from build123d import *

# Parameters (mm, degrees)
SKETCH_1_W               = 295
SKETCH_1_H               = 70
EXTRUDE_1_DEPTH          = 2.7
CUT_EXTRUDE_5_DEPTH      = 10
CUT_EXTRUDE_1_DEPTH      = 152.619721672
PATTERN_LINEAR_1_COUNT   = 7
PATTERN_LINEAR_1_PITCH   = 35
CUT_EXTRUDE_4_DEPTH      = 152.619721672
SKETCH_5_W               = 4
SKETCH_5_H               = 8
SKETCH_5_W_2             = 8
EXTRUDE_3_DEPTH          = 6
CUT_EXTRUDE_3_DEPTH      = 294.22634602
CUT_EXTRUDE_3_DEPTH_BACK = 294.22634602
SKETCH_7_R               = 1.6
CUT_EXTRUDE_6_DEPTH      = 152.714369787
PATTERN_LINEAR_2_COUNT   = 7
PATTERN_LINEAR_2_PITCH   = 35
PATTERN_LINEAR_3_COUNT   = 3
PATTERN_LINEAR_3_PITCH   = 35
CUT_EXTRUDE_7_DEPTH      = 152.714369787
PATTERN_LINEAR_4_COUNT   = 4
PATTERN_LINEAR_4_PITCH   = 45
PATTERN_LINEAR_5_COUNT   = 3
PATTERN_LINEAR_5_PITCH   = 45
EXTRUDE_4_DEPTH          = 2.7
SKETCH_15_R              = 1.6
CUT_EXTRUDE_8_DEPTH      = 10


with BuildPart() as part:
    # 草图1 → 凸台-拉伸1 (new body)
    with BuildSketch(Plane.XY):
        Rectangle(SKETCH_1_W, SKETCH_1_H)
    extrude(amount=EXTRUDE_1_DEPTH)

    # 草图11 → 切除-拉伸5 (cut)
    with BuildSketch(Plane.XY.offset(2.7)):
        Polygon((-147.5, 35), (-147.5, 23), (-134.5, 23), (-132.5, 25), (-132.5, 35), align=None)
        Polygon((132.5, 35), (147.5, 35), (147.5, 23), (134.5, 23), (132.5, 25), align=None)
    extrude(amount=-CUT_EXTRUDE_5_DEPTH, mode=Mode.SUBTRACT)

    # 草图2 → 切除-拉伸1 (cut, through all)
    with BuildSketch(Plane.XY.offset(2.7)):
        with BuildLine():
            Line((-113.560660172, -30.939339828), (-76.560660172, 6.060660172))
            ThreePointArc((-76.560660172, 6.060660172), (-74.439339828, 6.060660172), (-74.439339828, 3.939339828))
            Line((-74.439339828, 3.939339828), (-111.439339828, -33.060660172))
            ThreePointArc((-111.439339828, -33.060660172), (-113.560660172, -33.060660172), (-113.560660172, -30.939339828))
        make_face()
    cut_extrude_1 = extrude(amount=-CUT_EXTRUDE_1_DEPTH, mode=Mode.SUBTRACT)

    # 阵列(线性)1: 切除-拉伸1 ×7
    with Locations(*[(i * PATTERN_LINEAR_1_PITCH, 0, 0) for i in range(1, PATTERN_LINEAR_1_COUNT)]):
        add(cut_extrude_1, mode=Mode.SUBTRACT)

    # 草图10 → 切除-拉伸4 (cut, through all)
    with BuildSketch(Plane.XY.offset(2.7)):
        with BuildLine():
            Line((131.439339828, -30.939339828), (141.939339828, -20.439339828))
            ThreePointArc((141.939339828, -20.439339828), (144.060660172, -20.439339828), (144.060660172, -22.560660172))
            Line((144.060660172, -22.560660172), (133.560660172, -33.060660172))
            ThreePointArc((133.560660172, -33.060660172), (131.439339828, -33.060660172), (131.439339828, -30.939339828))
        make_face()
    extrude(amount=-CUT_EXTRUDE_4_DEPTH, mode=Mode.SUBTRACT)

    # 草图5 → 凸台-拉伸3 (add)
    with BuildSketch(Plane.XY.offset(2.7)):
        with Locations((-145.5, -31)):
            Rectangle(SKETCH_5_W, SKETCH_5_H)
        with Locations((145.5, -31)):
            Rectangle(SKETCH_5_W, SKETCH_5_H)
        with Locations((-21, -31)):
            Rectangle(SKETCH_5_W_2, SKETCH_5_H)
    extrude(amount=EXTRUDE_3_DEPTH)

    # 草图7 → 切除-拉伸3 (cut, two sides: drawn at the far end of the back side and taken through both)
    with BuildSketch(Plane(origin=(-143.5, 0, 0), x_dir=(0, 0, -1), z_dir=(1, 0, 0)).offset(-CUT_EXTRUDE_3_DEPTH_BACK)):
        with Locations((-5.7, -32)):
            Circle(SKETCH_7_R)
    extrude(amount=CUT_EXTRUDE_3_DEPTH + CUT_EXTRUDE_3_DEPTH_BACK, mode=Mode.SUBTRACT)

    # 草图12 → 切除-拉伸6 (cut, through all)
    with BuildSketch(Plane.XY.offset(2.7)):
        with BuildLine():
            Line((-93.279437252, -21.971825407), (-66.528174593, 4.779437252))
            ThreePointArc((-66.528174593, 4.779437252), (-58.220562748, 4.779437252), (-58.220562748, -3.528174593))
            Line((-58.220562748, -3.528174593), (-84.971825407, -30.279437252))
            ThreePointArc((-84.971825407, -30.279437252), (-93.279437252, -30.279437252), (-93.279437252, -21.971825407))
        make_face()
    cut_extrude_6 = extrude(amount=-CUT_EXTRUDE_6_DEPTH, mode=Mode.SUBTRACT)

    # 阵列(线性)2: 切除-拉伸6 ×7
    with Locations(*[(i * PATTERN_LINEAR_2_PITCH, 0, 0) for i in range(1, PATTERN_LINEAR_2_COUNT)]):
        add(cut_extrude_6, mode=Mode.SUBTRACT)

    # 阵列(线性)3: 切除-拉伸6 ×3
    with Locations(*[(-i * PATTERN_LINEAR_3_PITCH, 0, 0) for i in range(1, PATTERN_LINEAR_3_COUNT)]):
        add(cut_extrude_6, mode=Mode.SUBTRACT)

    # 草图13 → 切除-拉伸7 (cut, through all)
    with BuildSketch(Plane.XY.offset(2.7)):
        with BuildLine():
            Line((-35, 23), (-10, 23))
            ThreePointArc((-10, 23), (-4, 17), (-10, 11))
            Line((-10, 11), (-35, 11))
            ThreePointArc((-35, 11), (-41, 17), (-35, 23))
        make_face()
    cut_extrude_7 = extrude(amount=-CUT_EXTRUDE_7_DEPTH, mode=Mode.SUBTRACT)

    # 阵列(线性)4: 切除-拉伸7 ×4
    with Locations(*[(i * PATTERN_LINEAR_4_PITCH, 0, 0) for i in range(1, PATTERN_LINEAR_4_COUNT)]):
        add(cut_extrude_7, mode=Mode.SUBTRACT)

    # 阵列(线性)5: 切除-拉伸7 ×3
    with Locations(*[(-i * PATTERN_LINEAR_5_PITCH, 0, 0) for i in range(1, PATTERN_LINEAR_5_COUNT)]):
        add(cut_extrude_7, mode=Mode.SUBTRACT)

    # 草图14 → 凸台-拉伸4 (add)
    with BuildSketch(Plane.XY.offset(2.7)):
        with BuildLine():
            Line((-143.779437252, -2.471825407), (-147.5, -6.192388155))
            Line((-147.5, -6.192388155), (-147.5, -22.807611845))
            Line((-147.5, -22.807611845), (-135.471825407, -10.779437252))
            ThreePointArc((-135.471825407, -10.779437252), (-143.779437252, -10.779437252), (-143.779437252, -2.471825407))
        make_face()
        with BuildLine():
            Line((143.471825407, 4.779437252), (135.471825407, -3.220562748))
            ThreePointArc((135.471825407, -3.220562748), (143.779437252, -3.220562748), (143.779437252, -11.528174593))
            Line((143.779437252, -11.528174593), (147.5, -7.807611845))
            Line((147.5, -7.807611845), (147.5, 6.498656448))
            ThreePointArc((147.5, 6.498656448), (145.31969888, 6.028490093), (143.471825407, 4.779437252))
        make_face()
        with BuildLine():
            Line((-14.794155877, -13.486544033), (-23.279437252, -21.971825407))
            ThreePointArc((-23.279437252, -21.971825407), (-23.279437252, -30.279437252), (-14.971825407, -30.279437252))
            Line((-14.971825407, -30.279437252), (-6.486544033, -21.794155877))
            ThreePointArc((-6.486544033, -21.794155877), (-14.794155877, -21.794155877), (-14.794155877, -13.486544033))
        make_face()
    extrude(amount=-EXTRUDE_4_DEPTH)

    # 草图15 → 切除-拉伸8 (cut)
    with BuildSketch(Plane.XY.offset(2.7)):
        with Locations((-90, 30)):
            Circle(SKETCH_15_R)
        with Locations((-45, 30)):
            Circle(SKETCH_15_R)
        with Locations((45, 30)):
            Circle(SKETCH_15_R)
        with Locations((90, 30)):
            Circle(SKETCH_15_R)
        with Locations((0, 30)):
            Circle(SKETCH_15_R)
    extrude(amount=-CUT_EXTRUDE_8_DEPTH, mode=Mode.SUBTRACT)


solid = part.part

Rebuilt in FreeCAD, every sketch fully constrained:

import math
import FreeCAD as App
import Part
import Sketcher

V = App.Vector
Q = App.Units.Quantity


def add_polygon(sketch, points):
    """Adds a closed chain of lines whose ends are joined by coincident constraints."""
    first, n = sketch.GeometryCount, len(points)
    for a, b in zip(points, points[1:] + points[:1]):
        sketch.addGeometry(Part.LineSegment(App.Vector(*a, 0), App.Vector(*b, 0)), False)
    for i in range(n):
        sketch.addConstraint(Sketcher.Constraint("Coincident", first + i, 2, first + (i + 1) % n, 1))

doc = App.newDocument("Part")
body = doc.addObject("PartDesign::Body", "Body")

sketch1 = body.newObject("Sketcher::SketchObject", "Sketch")
sketch1.AttachmentSupport = (doc.getObject("XY_Plane"), [""])
sketch1.MapMode = "FlatFace"
add_polygon(sketch1, [(-148, 35), (-148, -35), (148, -35), (148, 35)])
sketch1.addConstraint([
    Sketcher.Constraint("Vertical", 0),
    Sketcher.Constraint("Horizontal", 1),
    Sketcher.Constraint("Vertical", 2),
    Sketcher.Constraint("Horizontal", 3),
    Sketcher.Constraint("Symmetric", 0, 2, 2, 2, -1, 1),
    Sketcher.Constraint("DistanceX", 1, 1, 1, 2, Q("295 mm")),
    Sketcher.Constraint("DistanceY", 0, 2, 0, 1, Q("70 mm")),
])
pad1 = body.newObject("PartDesign::Pad", "Pad")
pad1.Profile = sketch1
pad1.Length = 2.7

sketch2 = body.newObject("Sketcher::SketchObject", "Sketch001")
sketch2.AttachmentSupport = (doc.getObject("XY_Plane"), [""])
sketch2.MapMode = "FlatFace"
sketch2.AttachmentOffset = App.Placement(V(0, 0, 2.7), App.Rotation())
add_polygon(sketch2, [(-147.5, 35), (-147.5, 23), (-134.5, 23), (-132.5, 25), (-132.5, 35)])
add_polygon(sketch2, [(147.5, 35), (132.5, 35), (132.5, 25), (134.5, 23), (147.5, 23)])
sketch2.addConstraint([
    Sketcher.Constraint("Vertical", 0),
    Sketcher.Constraint("Horizontal", 1),
    Sketcher.Constraint("Vertical", 3),
    Sketcher.Constraint("Horizontal", 4),
    Sketcher.Constraint("Horizontal", 5),
    Sketcher.Constraint("Vertical", 6),
    Sketcher.Constraint("Horizontal", 8),
    Sketcher.Constraint("Vertical", 9),
    Sketcher.Constraint("Symmetric", 3, 2, 5, 2, -2),
    Sketcher.Constraint("Symmetric", 1, 2, 7, 2, -2),
    Sketcher.Constraint("Perpendicular", 2, 7),
    Sketcher.Constraint("Horizontal", 2, 2, 6, 2),
    Sketcher.Constraint("Equal", 4, 5),
    Sketcher.Constraint("DistanceX", 1, 1, 1, 2, Q("13 mm")),
    Sketcher.Constraint("DistanceX", 4, 2, 4, 1, Q("15 mm")),
    Sketcher.Constraint("DistanceY", 0, 2, 0, 1, Q("12 mm")),
    Sketcher.Constraint("DistanceY", -1, 1, 0, 2, Q("23 mm")),
    Sketcher.Constraint("DistanceX", 3, 2, 5, 2, Q("265 mm")),
])
pocket1 = body.newObject("PartDesign::Pocket", "Pocket")
pocket1.Profile = sketch2
pocket1.Length = 10

sketch3 = body.newObject("Sketcher::SketchObject", "Sketch002")
sketch3.AttachmentSupport = (doc.getObject("XY_Plane"), [""])
sketch3.MapMode = "FlatFace"
sketch3.AttachmentOffset = App.Placement(V(0, 0, 2.7), App.Rotation())
sketch3.addGeometry([
    Part.LineSegment(V(-76.6, 6.1, 0), V(-113.6, -30.9, 0)),
    Part.ArcOfCircle(Part.Circle(V(-112.5, -32, 0), V(0, 0, 1), 1.5), math.radians(135), math.radians(315)),
    Part.LineSegment(V(-111.4, -33.1, 0), V(-74.4, 3.9, 0)),
    Part.ArcOfCircle(Part.Circle(V(-75.5, 5, 0), V(0, 0, 1), 1.5), math.radians(-45), math.radians(135)),
], False)
sketch3.addConstraint([
    Sketcher.Constraint("Tangent", 0, 2, 1, 1),
    Sketcher.Constraint("Tangent", 1, 2, 2, 1),
    Sketcher.Constraint("Tangent", 2, 2, 3, 1),
    Sketcher.Constraint("Tangent", 3, 2, 0, 1),
    Sketcher.Constraint("Equal", 1, 3),
    Sketcher.Constraint("Radius", 1, Q("1.5 mm")),
    Sketcher.Constraint("Angle", 0, Q("-135 deg")),
    Sketcher.Constraint("DistanceY", 1, 3, -1, 1, Q("32 mm")),
    Sketcher.Constraint("DistanceY", -1, 1, 3, 3, Q("5 mm")),
    Sketcher.Constraint("DistanceX", 1, 3, -1, 1, Q("112.5 mm")),
])
pocket2 = body.newObject("PartDesign::Pocket", "Pocket001")
pocket2.Profile = sketch3
pocket2.Type = "ThroughAll"
doc.recompute()

linearpattern = body.newObject("PartDesign::LinearPattern", "LinearPattern")
linearpattern.Originals = [pocket2]
linearpattern.Direction = (doc.getObject("X_Axis"), [""])
linearpattern.Mode = "offset"
linearpattern.Offset = 35
linearpattern.Occurrences = 7
body.Tip = linearpattern

sketch4 = body.newObject("Sketcher::SketchObject", "Sketch003")
sketch4.AttachmentSupport = (doc.getObject("XY_Plane"), [""])
sketch4.MapMode = "FlatFace"
sketch4.AttachmentOffset = App.Placement(V(0, 0, 2.7), App.Rotation())
sketch4.addGeometry([
    Part.LineSegment(V(141.9, -20.4, 0), V(131.4, -30.9, 0)),
    Part.ArcOfCircle(Part.Circle(V(132.5, -32, 0), V(0, 0, 1), 1.5), math.radians(135), math.radians(315)),
    Part.LineSegment(V(133.6, -33.1, 0), V(144.1, -22.6, 0)),
    Part.ArcOfCircle(Part.Circle(V(143, -21.5, 0), V(0, 0, 1), 1.5), math.radians(-45), math.radians(135)),
], False)
sketch4.addConstraint([
    Sketcher.Constraint("Tangent", 0, 2, 1, 1),
    Sketcher.Constraint("Tangent", 1, 2, 2, 1),
    Sketcher.Constraint("Tangent", 2, 2, 3, 1),
    Sketcher.Constraint("Tangent", 3, 2, 0, 1),
    Sketcher.Constraint("Equal", 1, 3),
    Sketcher.Constraint("Radius", 1, Q("1.5 mm")),
    Sketcher.Constraint("Angle", 0, Q("-135 deg")),
    Sketcher.Constraint("DistanceY", 1, 3, -1, 1, Q("32 mm")),
    Sketcher.Constraint("DistanceX", -1, 1, 3, 3, Q("143 mm")),
    Sketcher.Constraint("DistanceX", -1, 1, 1, 3, Q("132.5 mm")),
])
pocket3 = body.newObject("PartDesign::Pocket", "Pocket002")
pocket3.Profile = sketch4
pocket3.Type = "ThroughAll"

sketch5 = body.newObject("Sketcher::SketchObject", "Sketch004")
sketch5.AttachmentSupport = (doc.getObject("XY_Plane"), [""])
sketch5.MapMode = "FlatFace"
sketch5.AttachmentOffset = App.Placement(V(0, 0, 2.7), App.Rotation())
add_polygon(sketch5, [(-147.5, -27), (-147.5, -35), (-143.5, -35), (-143.5, -27)])
add_polygon(sketch5, [(143.5, -27), (143.5, -35), (147.5, -35), (147.5, -27)])
add_polygon(sketch5, [(-25, -27), (-25, -35), (-17, -35), (-17, -27)])
sketch5.addConstraint([
    Sketcher.Constraint("Vertical", 0),
    Sketcher.Constraint("Horizontal", 1),
    Sketcher.Constraint("Vertical", 2),
    Sketcher.Constraint("Horizontal", 3),
    Sketcher.Constraint("Vertical", 4),
    Sketcher.Constraint("Horizontal", 5),
    Sketcher.Constraint("Vertical", 6),
    Sketcher.Constraint("Horizontal", 7),
    Sketcher.Constraint("Vertical", 8),
    Sketcher.Constraint("Horizontal", 9),
    Sketcher.Constraint("Vertical", 10),
    Sketcher.Constraint("Horizontal", 11),
    Sketcher.Constraint("Symmetric", 1, 2, 4, 2, -2),
    Sketcher.Constraint("Symmetric", 3, 2, 6, 2, -2),
    Sketcher.Constraint("Horizontal", 5, 2, 8, 2),
    Sketcher.Constraint("Horizontal", 7, 2, 10, 2),
    Sketcher.Constraint("Equal", 11, 0),
    Sketcher.Constraint("DistanceX", 1, 1, 1, 2, Q("4 mm")),
    Sketcher.Constraint("DistanceX", 9, 1, 9, 2, Q("8 mm")),
    Sketcher.Constraint("DistanceY", 0, 2, -1, 1, Q("35 mm")),
    Sketcher.Constraint("DistanceX", 8, 2, -1, 1, Q("25 mm")),
    Sketcher.Constraint("DistanceX", 1, 2, 4, 2, Q("287 mm")),
])
pad2 = body.newObject("PartDesign::Pad", "Pad001")
pad2.Profile = sketch5
pad2.Length = 6

sketch6 = body.newObject("Sketcher::SketchObject", "Sketch005")
sketch6.AttachmentSupport = (doc.getObject("YZ_Plane"), [""])
sketch6.MapMode = "FlatFace"
sketch6.AttachmentOffset = App.Placement(V(0, 0, -143.5), App.Rotation())
sketch6.addGeometry(Part.Circle(V(-32, 5.7, 0), V(0, 0, 1), 1.6), False)
sketch6.addConstraint([
    Sketcher.Constraint("Diameter", 0, Q("3.2 mm")),
    Sketcher.Constraint("DistanceX", 0, 3, -1, 1, Q("32 mm")),
    Sketcher.Constraint("DistanceY", -1, 1, 0, 3, Q("5.7 mm")),
])
pocket4 = body.newObject("PartDesign::Pocket", "Pocket003")
pocket4.Profile = sketch6
pocket4.Type = "ThroughAll"
pocket4.Midplane = True

sketch7 = body.newObject("Sketcher::SketchObject", "Sketch006")
sketch7.AttachmentSupport = (doc.getObject("XY_Plane"), [""])
sketch7.MapMode = "FlatFace"
sketch7.AttachmentOffset = App.Placement(V(0, 0, 2.7), App.Rotation())
sketch7.addGeometry([
    Part.LineSegment(V(-67, 5, 0), V(-93, -22, 0)),
    Part.ArcOfCircle(Part.Circle(V(-89, -26, 0), V(0, 0, 1), 6), math.radians(135), math.radians(315)),
    Part.LineSegment(V(-85, -30, 0), V(-58, -4, 0)),
    Part.ArcOfCircle(Part.Circle(V(-62, 1, 0), V(0, 0, 1), 6), math.radians(-45), math.radians(135)),
], False)
sketch7.addConstraint([
    Sketcher.Constraint("Tangent", 0, 2, 1, 1),
    Sketcher.Constraint("Tangent", 1, 2, 2, 1),
    Sketcher.Constraint("Tangent", 2, 2, 3, 1),
    Sketcher.Constraint("Tangent", 3, 2, 0, 1),
    Sketcher.Constraint("Equal", 1, 3),
    Sketcher.Constraint("Angle", 0, Q("-135 deg")),
    Sketcher.Constraint("Radius", 1, Q("5.874369 mm")),
    Sketcher.Constraint("Distance", 0, Q("37.831998 mm")),
    Sketcher.Constraint("DistanceX", 1, 3, -1, 1, Q("89.125631 mm")),
    Sketcher.Constraint("DistanceY", 1, 3, -1, 1, Q("26.125631 mm")),
])
pocket5 = body.newObject("PartDesign::Pocket", "Pocket004")
pocket5.Profile = sketch7
pocket5.Type = "ThroughAll"
doc.recompute()

linearpattern2 = body.newObject("PartDesign::LinearPattern", "LinearPattern001")
linearpattern2.Originals = [pocket5]
linearpattern2.Direction = (doc.getObject("X_Axis"), [""])
linearpattern2.Mode = "offset"
linearpattern2.Offset = 35
linearpattern2.Occurrences = 7
body.Tip = linearpattern2
doc.recompute()

linearpattern3 = body.newObject("PartDesign::LinearPattern", "LinearPattern002")
linearpattern3.Originals = [pocket5]
linearpattern3.Direction = (doc.getObject("X_Axis"), [""])
linearpattern3.Mode = "offset"
linearpattern3.Offset = 35
linearpattern3.Occurrences = 3
linearpattern3.Reversed = True
body.Tip = linearpattern3

sketch8 = body.newObject("Sketcher::SketchObject", "Sketch007")
sketch8.AttachmentSupport = (doc.getObject("XY_Plane"), [""])
sketch8.MapMode = "FlatFace"
sketch8.AttachmentOffset = App.Placement(V(0, 0, 2.7), App.Rotation())
sketch8.addGeometry([
    Part.LineSegment(V(-10, 23, 0), V(-35, 23, 0)),
    Part.ArcOfCircle(Part.Circle(V(-35, 17, 0), V(0, 0, 1), 6), math.radians(90), math.radians(270)),
    Part.LineSegment(V(-35, 11, 0), V(-10, 11, 0)),
    Part.ArcOfCircle(Part.Circle(V(-10, 17, 0), V(0, 0, 1), 6), math.radians(-90), math.radians(90)),
], False)
sketch8.addConstraint([
    Sketcher.Constraint("Tangent", 0, 2, 1, 1),
    Sketcher.Constraint("Tangent", 1, 2, 2, 1),
    Sketcher.Constraint("Tangent", 2, 2, 3, 1),
    Sketcher.Constraint("Tangent", 3, 2, 0, 1),
    Sketcher.Constraint("Horizontal", 0),
    Sketcher.Constraint("Horizontal", 2),
    Sketcher.Constraint("Radius", 1, Q("6 mm")),
    Sketcher.Constraint("DistanceX", 0, 2, 0, 1, Q("25 mm")),
    Sketcher.Constraint("DistanceX", 1, 3, -1, 1, Q("35 mm")),
    Sketcher.Constraint("DistanceY", -1, 1, 1, 3, Q("17 mm")),
])
pocket6 = body.newObject("PartDesign::Pocket", "Pocket005")
pocket6.Profile = sketch8
pocket6.Type = "ThroughAll"
doc.recompute()

linearpattern4 = body.newObject("PartDesign::LinearPattern", "LinearPattern003")
linearpattern4.Originals = [pocket6]
linearpattern4.Direction = (doc.getObject("X_Axis"), [""])
linearpattern4.Mode = "offset"
linearpattern4.Offset = 45
linearpattern4.Occurrences = 4
body.Tip = linearpattern4
doc.recompute()

linearpattern5 = body.newObject("PartDesign::LinearPattern", "LinearPattern004")
linearpattern5.Originals = [pocket6]
linearpattern5.Direction = (doc.getObject("X_Axis"), [""])
linearpattern5.Mode = "offset"
linearpattern5.Offset = 45
linearpattern5.Occurrences = 3
linearpattern5.Reversed = True
body.Tip = linearpattern5

sketch9 = body.newObject("Sketcher::SketchObject", "Sketch008")
sketch9.AttachmentSupport = (doc.getObject("XY_Plane"), [""])
sketch9.MapMode = "FlatFace"
sketch9.AttachmentOffset = App.Placement(V(0, 0, 2.7), App.Rotation())
sketch9.addGeometry([
    Part.LineSegment(V(-143.8, -2.5, 0), V(-147.5, -6.2, 0)),
    Part.LineSegment(V(-147.5, -6.2, 0), V(-147.5, -22.8, 0)),
    Part.LineSegment(V(-147.5, -22.8, 0), V(-135.5, -10.8, 0)),
    Part.ArcOfCircle(Part.Circle(V(-139.6, -6.6, 0), V(0, 0, 1), 5.9), math.radians(135), math.radians(315)),
    Part.LineSegment(V(143.5, 4.8, 0), V(135.5, -3.2, 0)),
    Part.ArcOfCircle(Part.Circle(V(139.6, -7.4, 0), V(0, 0, 1), 5.9), math.radians(-45), math.radians(135)),
    Part.LineSegment(V(143.8, -11.5, 0), V(147.5, -7.8, 0)),
    Part.LineSegment(V(147.5, -7.8, 0), V(147.5, 6.5, 0)),
    Part.ArcOfCircle(Part.Circle(V(147.6, 0.6, 0), V(0, 0, 1), 5.9), math.radians(91), math.radians(135)),
    Part.LineSegment(V(-14.8, -13.5, 0), V(-23.3, -22, 0)),
    Part.ArcOfCircle(Part.Circle(V(-19.1, -26.1, 0), V(0, 0, 1), 5.9), math.radians(135), math.radians(315)),
    Part.LineSegment(V(-15, -30.3, 0), V(-6.5, -21.8, 0)),
    Part.ArcOfCircle(Part.Circle(V(-10.6, -17.6, 0), V(0, 0, 1), 5.9), math.radians(135), math.radians(315)),
], False)
sketch9.addConstraint([
    Sketcher.Constraint("Coincident", 0, 2, 1, 1),
    Sketcher.Constraint("Coincident", 1, 2, 2, 1),
    Sketcher.Constraint("Tangent", 2, 2, 3, 2),
    Sketcher.Constraint("Tangent", 3, 1, 0, 1),
    Sketcher.Constraint("Tangent", 4, 2, 5, 2),
    Sketcher.Constraint("Tangent", 5, 1, 6, 1),
    Sketcher.Constraint("Coincident", 6, 2, 7, 1),
    Sketcher.Constraint("Coincident", 7, 2, 8, 1),
    Sketcher.Constraint("Tangent", 8, 2, 4, 1),
    Sketcher.Constraint("Tangent", 9, 2, 10, 1),
    Sketcher.Constraint("Tangent", 10, 2, 11, 1),
    Sketcher.Constraint("Tangent", 11, 2, 12, 2),
    Sketcher.Constraint("Tangent", 12, 1, 9, 1),
    Sketcher.Constraint("Vertical", 1),
    Sketcher.Constraint("Vertical", 7),
    Sketcher.Constraint("Equal", 3, 5),
    Sketcher.Constraint("Equal", 5, 8),
    Sketcher.Constraint("Equal", 8, 10),
    Sketcher.Constraint("Equal", 10, 12),
    Sketcher.Constraint("Parallel", 0, 2),
    Sketcher.Constraint("Parallel", 2, 4),
    Sketcher.Constraint("Parallel", 4, 6),
    Sketcher.Constraint("Parallel", 6, 9),
    Sketcher.Constraint("Equal", 0, 6),
    Sketcher.Constraint("Angle", 0, Q("-135 deg")),
    Sketcher.Constraint("Distance", 9, Q("12 mm")),
    Sketcher.Constraint("DistanceX", 5, 3, 8, 3, Q("8 mm")),
    Sketcher.Constraint("DistanceX", 0, 2, -1, 1, Q("147.5 mm")),
    Sketcher.Constraint("DistanceX", -1, 1, 6, 2, Q("147.5 mm")),
    Sketcher.Constraint("DistanceX", 3, 3, 10, 3, Q("120.5 mm")),
    Sketcher.Constraint("DistanceY", 10, 3, 3, 3, Q("19.5 mm")),
    Sketcher.Constraint("Radius", 3, Q("5.874369 mm")),
    Sketcher.Constraint("DistanceY", 7, 1, 7, 2, Q("14.306268 mm")),
    Sketcher.Constraint("DistanceY", 3, 3, -1, 1, Q("6.625631 mm")),
    Sketcher.Constraint("DistanceY", 5, 3, -1, 1, Q("7.374369 mm")),
])
pad3 = body.newObject("PartDesign::Pad", "Pad002")
pad3.Profile = sketch9
pad3.Length = 2.7
pad3.Reversed = True

sketch10 = body.newObject("Sketcher::SketchObject", "Sketch009")
sketch10.AttachmentSupport = (doc.getObject("XY_Plane"), [""])
sketch10.MapMode = "FlatFace"
sketch10.AttachmentOffset = App.Placement(V(0, 0, 2.7), App.Rotation())
sketch10.addGeometry([
    Part.Circle(V(-90, 30, 0), V(0, 0, 1), 1.6),
    Part.Circle(V(-45, 30, 0), V(0, 0, 1), 1.6),
    Part.Circle(V(45, 30, 0), V(0, 0, 1), 1.6),
    Part.Circle(V(90, 30, 0), V(0, 0, 1), 1.6),
    Part.Circle(V(0, 30, 0), V(0, 0, 1), 1.6),
], False)
sketch10.addConstraint([
    Sketcher.Constraint("Equal", 0, 1),
    Sketcher.Constraint("Equal", 1, 2),
    Sketcher.Constraint("Equal", 2, 3),
    Sketcher.Constraint("Equal", 3, 4),
    Sketcher.Constraint("Symmetric", 1, 3, 2, 3, -2),
    Sketcher.Constraint("Symmetric", 0, 3, 3, 3, -2),
    Sketcher.Constraint("PointOnObject", 4, 3, -2),
    Sketcher.Constraint("Horizontal", 0, 3, 1, 3),
    Sketcher.Constraint("Horizontal", 3, 3, 4, 3),
    Sketcher.Constraint("Diameter", 0, Q("3.2 mm")),
    Sketcher.Constraint("DistanceX", 0, 3, -1, 1, Q("90 mm")),
    Sketcher.Constraint("DistanceY", -1, 1, 0, 3, Q("30 mm")),
    Sketcher.Constraint("DistanceX", 1, 3, -1, 1, Q("45 mm")),
])
pocket7 = body.newObject("PartDesign::Pocket", "Pocket006")
pocket7.Profile = sketch10
pocket7.Length = 10

doc.recompute()
